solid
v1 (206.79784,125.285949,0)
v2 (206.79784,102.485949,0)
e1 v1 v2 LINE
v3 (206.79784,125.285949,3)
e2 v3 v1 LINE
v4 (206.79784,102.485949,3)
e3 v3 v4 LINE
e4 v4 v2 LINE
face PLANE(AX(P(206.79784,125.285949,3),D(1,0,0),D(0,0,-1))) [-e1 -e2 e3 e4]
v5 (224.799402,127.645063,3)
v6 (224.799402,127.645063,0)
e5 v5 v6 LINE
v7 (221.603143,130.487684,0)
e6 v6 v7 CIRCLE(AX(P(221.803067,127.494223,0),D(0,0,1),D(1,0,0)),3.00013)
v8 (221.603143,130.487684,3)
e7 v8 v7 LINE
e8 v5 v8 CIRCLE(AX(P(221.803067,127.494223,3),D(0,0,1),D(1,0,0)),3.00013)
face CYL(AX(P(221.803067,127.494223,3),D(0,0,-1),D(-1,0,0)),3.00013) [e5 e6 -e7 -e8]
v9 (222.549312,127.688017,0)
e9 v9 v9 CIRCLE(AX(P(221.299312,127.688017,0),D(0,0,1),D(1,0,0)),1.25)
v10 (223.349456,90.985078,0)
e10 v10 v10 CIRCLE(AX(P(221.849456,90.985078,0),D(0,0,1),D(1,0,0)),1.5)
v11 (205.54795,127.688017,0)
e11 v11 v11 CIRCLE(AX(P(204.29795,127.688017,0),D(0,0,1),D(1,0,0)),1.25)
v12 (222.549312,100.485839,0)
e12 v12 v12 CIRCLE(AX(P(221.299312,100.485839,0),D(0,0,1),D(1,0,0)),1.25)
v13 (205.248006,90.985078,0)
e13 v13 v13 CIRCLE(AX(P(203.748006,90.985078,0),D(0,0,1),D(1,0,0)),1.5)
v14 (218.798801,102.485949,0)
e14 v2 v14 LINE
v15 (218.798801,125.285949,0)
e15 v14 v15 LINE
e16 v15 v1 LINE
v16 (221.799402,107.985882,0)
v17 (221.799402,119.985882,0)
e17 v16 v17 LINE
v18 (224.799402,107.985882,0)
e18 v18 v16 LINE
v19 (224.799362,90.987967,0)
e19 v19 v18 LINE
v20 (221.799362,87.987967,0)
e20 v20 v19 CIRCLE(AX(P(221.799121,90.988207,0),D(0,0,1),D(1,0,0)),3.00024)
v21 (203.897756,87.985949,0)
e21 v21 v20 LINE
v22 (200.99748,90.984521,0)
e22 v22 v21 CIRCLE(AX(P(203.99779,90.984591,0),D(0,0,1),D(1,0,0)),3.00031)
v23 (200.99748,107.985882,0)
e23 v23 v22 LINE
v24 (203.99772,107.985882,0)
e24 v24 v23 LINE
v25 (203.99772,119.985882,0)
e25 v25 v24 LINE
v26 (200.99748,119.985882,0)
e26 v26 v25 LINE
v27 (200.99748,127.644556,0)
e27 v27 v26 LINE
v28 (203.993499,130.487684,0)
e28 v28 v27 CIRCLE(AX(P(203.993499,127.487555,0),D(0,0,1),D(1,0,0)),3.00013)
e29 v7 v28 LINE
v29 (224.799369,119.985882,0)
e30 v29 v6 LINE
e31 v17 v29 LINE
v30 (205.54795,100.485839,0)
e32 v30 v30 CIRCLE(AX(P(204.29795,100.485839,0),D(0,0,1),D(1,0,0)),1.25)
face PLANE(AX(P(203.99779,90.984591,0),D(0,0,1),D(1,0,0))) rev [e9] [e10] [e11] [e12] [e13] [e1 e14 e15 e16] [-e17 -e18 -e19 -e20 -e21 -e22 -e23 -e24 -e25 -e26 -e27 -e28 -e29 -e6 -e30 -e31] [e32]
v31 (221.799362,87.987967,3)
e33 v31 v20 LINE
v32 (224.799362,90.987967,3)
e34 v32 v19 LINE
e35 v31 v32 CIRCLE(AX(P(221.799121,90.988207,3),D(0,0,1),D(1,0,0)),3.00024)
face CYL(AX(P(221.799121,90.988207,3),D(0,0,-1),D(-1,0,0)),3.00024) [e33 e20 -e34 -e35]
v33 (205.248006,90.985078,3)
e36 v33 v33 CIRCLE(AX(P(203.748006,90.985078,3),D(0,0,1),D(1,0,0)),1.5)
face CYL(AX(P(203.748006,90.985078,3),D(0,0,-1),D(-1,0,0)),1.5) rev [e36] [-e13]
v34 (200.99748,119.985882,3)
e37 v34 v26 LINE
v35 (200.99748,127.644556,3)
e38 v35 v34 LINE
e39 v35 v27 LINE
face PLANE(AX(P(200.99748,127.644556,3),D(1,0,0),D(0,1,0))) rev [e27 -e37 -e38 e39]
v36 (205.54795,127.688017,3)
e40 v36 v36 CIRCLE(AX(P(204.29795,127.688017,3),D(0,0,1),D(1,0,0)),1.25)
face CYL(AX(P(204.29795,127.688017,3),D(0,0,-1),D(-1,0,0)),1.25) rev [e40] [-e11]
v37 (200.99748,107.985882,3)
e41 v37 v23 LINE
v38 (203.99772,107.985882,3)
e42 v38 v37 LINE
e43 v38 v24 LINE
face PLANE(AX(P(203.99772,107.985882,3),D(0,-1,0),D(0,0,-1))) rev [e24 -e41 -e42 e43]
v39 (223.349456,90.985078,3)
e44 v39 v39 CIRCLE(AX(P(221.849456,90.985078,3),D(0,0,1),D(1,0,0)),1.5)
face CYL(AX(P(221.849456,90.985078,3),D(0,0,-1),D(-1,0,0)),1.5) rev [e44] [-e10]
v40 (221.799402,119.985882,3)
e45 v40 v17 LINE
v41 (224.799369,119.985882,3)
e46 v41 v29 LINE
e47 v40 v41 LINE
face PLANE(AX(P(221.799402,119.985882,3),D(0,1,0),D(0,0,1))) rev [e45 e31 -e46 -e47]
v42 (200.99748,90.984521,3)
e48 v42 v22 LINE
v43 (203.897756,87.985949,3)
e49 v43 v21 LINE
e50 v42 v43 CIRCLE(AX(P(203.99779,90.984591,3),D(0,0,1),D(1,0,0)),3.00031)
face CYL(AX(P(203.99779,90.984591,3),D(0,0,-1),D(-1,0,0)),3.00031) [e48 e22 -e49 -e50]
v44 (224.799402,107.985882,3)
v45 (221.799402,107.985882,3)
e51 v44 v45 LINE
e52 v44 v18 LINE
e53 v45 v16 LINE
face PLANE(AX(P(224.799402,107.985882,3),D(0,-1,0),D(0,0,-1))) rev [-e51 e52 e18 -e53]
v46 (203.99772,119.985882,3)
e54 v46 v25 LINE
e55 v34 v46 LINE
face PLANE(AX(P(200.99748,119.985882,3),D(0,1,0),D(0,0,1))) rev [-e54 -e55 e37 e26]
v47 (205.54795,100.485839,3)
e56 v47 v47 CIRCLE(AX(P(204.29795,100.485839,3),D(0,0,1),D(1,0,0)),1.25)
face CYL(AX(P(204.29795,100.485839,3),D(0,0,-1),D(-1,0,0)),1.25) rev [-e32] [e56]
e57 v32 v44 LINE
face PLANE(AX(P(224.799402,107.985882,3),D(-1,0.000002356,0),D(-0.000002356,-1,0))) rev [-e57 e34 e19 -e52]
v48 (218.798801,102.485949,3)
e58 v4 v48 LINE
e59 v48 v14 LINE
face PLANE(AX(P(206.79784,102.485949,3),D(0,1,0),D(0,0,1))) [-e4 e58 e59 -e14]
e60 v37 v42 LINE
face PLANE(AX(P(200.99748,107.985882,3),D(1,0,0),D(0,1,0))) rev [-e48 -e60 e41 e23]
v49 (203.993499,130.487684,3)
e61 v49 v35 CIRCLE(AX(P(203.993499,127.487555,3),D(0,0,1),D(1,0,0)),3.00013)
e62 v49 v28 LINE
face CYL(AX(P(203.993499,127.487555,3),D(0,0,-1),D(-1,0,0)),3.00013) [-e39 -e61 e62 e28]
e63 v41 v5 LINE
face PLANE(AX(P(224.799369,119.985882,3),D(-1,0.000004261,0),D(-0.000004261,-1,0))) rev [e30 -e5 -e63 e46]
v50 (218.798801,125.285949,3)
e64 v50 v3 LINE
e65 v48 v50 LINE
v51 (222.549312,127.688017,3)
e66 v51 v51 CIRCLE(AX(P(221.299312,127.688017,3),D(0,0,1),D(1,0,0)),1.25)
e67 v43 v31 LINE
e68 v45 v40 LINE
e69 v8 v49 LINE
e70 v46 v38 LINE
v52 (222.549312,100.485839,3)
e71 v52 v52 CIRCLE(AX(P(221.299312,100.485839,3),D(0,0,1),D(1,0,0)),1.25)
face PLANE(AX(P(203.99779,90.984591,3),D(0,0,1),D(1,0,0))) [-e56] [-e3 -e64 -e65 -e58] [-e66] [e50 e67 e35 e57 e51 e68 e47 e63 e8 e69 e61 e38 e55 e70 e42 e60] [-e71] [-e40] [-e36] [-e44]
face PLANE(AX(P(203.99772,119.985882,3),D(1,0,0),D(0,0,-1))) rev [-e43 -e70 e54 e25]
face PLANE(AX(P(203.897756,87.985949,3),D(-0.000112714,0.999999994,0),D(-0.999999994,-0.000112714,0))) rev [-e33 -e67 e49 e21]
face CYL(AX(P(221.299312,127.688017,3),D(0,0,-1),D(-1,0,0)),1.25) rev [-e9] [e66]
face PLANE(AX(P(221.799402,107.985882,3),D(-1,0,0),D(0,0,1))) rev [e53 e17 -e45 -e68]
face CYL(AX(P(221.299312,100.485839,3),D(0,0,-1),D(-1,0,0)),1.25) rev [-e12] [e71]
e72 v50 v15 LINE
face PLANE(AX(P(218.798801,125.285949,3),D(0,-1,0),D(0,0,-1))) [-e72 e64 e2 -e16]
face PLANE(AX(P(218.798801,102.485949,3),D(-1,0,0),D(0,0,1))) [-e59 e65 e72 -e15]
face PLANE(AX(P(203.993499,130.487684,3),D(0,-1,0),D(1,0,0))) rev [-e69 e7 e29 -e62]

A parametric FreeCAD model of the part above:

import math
import FreeCAD as App
import Part
import Sketcher
from FreeCAD import Vector
Q = App.Units.Quantity


def add_polygon(sketch, points):
    """Adds a closed chain of lines whose ends are joined by coincident constraints."""
    first, n = sketch.GeometryCount, len(points)
    for a, b in zip(points, points[1:] + points[:1]):
        sketch.addGeometry(Part.LineSegment(App.Vector(*a, 0), App.Vector(*b, 0)), False)
    for i in range(n):
        sketch.addConstraint(Sketcher.Constraint("Coincident", first + i, 2, first + (i + 1) % n, 1))

doc = App.newDocument("Part")
body = doc.addObject("PartDesign::Body", "Body")

sketch1 = doc.addObject("Sketcher::SketchObject", "Sketch")
body.addObject(sketch1)
sketch1.AttachmentSupport = (doc.XY_Plane, [""])
sketch1.MapMode = "FlatFace"
sketch1.addGeometry(Part.LineSegment(Vector(224.799402, 107.985882, 0), Vector(221.799402, 107.985882, 0)), False)
sketch1.addGeometry(Part.LineSegment(Vector(221.799402, 107.985882, 0), Vector(221.799402, 119.985882, 0)), False)
sketch1.addGeometry(Part.LineSegment(Vector(221.799402, 119.985882, 0), Vector(224.799369, 119.985882, 0)), False)
sketch1.addGeometry(Part.LineSegment(Vector(224.799369, 119.985882, 0), Vector(224.799402, 127.645063, 0)), False)
sketch1.addGeometry(Part.ArcOfCircle(Part.Circle(Vector(221.803067, 127.494223, 0), Vector(0, 0, 1), 3.00013), math.radians(2.881927), math.radians(93.820927)), False)
sketch1.addGeometry(Part.LineSegment(Vector(221.603143, 130.487684, 0), Vector(203.993499, 130.487684, 0)), False)
sketch1.addGeometry(Part.ArcOfCircle(Part.Circle(Vector(203.993499, 127.487555, 0), Vector(0, 0, 1), 3.00013), math.radians(90), math.radians(177.000244)), False)
sketch1.addGeometry(Part.LineSegment(Vector(200.99748, 127.644556, 0), Vector(200.99748, 119.985882, 0)), False)
sketch1.addGeometry(Part.LineSegment(Vector(200.99748, 119.985882, 0), Vector(203.99772, 119.985882, 0)), False)
sketch1.addGeometry(Part.LineSegment(Vector(203.99772, 119.985882, 0), Vector(203.99772, 107.985882, 0)), False)
sketch1.addGeometry(Part.LineSegment(Vector(203.99772, 107.985882, 0), Vector(200.99748, 107.985882, 0)), False)
sketch1.addGeometry(Part.LineSegment(Vector(200.99748, 107.985882, 0), Vector(200.99748, 90.984521, 0)), False)
sketch1.addGeometry(Part.ArcOfCircle(Part.Circle(Vector(203.99779, 90.984591, 0), Vector(0, 0, 1), 3.00031), math.radians(-179.998674), math.radians(-91.910651)), False)
sketch1.addGeometry(Part.LineSegment(Vector(203.897756, 87.985949, 0), Vector(221.799362, 87.987967, 0)), False)
sketch1.addGeometry(Part.ArcOfCircle(Part.Circle(Vector(221.799121, 90.988207, 0), Vector(0, 0, 1), 3.00024), math.radians(-89.995413), math.radians(-0.004587)), False)
sketch1.addGeometry(Part.LineSegment(Vector(224.799362, 90.987967, 0), Vector(224.799402, 107.985882, 0)), False)
sketch1.addGeometry(Part.Circle(Vector(203.748006, 90.985078, 0), Vector(0, 0, 1), 1.5), False)
sketch1.addGeometry(Part.Circle(Vector(204.29795, 100.485839, 0), Vector(0, 0, 1), 1.25), False)
sketch1.addGeometry(Part.Circle(Vector(221.849456, 90.985078, 0), Vector(0, 0, 1), 1.5), False)
sketch1.addGeometry(Part.Circle(Vector(221.299312, 100.485839, 0), Vector(0, 0, 1), 1.25), False)
add_polygon(sketch1, [(218.798801, 102.485949), (206.79784, 102.485949), (206.79784, 125.285949), (218.798801, 125.285949)])
sketch1.addGeometry(Part.Circle(Vector(204.29795, 127.688017, 0), Vector(0, 0, 1), 1.25), False)
sketch1.addGeometry(Part.Circle(Vector(221.299312, 127.688017, 0), Vector(0, 0, 1), 1.25), False)
sketch1.addConstraint(Sketcher.Constraint("Coincident", 0, 2, 1, 1))
sketch1.addConstraint(Sketcher.Constraint("Coincident", 1, 2, 2, 1))
sketch1.addConstraint(Sketcher.Constraint("Coincident", 2, 2, 3, 1))
sketch1.addConstraint(Sketcher.Constraint("Coincident", 3, 2, 4, 1))
sketch1.addConstraint(Sketcher.Constraint("Coincident", 4, 2, 5, 1))
sketch1.addConstraint(Sketcher.Constraint("Tangent", 5, 2, 6, 1))
sketch1.addConstraint(Sketcher.Constraint("Coincident", 6, 2, 7, 1))
sketch1.addConstraint(Sketcher.Constraint("Coincident", 7, 2, 8, 1))
sketch1.addConstraint(Sketcher.Constraint("Coincident", 8, 2, 9, 1))
sketch1.addConstraint(Sketcher.Constraint("Coincident", 9, 2, 10, 1))
sketch1.addConstraint(Sketcher.Constraint("Coincident", 10, 2, 11, 1))
sketch1.addConstraint(Sketcher.Constraint("Coincident", 11, 2, 12, 1))
sketch1.addConstraint(Sketcher.Constraint("Coincident", 12, 2, 13, 1))
sketch1.addConstraint(Sketcher.Constraint("Coincident", 13, 2, 14, 1))
sketch1.addConstraint(Sketcher.Constraint("Coincident", 14, 2, 15, 1))
sketch1.addConstraint(Sketcher.Constraint("Coincident", 15, 2, 0, 1))
sketch1.addConstraint(Sketcher.Constraint("Horizontal", 0))
sketch1.addConstraint(Sketcher.Constraint("Vertical", 1))
sketch1.addConstraint(Sketcher.Constraint("Horizontal", 2))
sketch1.addConstraint(Sketcher.Constraint("Horizontal", 5))
sketch1.addConstraint(Sketcher.Constraint("Vertical", 7))
sketch1.addConstraint(Sketcher.Constraint("Horizontal", 8))
sketch1.addConstraint(Sketcher.Constraint("Vertical", 9))
sketch1.addConstraint(Sketcher.Constraint("Horizontal", 10))
sketch1.addConstraint(Sketcher.Constraint("Vertical", 11))
sketch1.addConstraint(Sketcher.Constraint("Horizontal", 20))
sketch1.addConstraint(Sketcher.Constraint("Vertical", 21))
sketch1.addConstraint(Sketcher.Constraint("Horizontal", 22))
sketch1.addConstraint(Sketcher.Constraint("Vertical", 23))
sketch1.addConstraint(Sketcher.Constraint("Equal", 4, 6))
sketch1.addConstraint(Sketcher.Constraint("Equal", 16, 18))
sketch1.addConstraint(Sketcher.Constraint("Equal", 17, 19))
sketch1.addConstraint(Sketcher.Constraint("Equal", 19, 24))
sketch1.addConstraint(Sketcher.Constraint("Equal", 24, 25))
sketch1.addConstraint(Sketcher.Constraint("Parallel", 3, 15))
sketch1.addConstraint(Sketcher.Constraint("Horizontal", 16, 3, 18, 3))
sketch1.addConstraint(Sketcher.Constraint("Horizontal", 17, 3, 19, 3))
sketch1.addConstraint(Sketcher.Constraint("Horizontal", 24, 3, 25, 3))
sketch1.addConstraint(Sketcher.Constraint("Horizontal", 2, 2, 7, 2))
sketch1.addConstraint(Sketcher.Constraint("Horizontal", 0, 2, 9, 2))
sketch1.addConstraint(Sketcher.Constraint("Vertical", 17, 3, 24, 3))
sketch1.addConstraint(Sketcher.Constraint("Vertical", 19, 3, 25, 3))
sketch1.addConstraint(Sketcher.Constraint("Vertical", 7, 2, 10, 2))
sketch1.addConstraint(Sketcher.Constraint("Vertical", 3, 2, 15, 2))
sketch1.addConstraint(Sketcher.Constraint("Diameter", 16, Q("3 mm")))
sketch1.addConstraint(Sketcher.Constraint("Diameter", 17, Q("2.5 mm")))
sketch1.addConstraint(Sketcher.Constraint("DistanceX", 0, 2, 0, 1, Q("3 mm")))
sketch1.addConstraint(Sketcher.Constraint("DistanceY", 1, 1, 1, 2, Q("12 mm")))
sketch1.addConstraint(Sketcher.Constraint("DistanceY", 21, 1, 21, 2, Q("22.8 mm")))
sketch1.addConstraint(Sketcher.Constraint("DistanceX", 13, 2, 14, 2, Q("3 mm")))
sketch1.addConstraint(Sketcher.Constraint("DistanceY", 13, 2, 14, 2, Q("3 mm")))
sketch1.addConstraint(Sketcher.Constraint("Radius", 4, Q("3.00013 mm")))
sketch1.addConstraint(Sketcher.Constraint("Radius", 12, Q("3.00031 mm")))
sketch1.addConstraint(Sketcher.Constraint("Radius", 14, Q("3.00024 mm")))
sketch1.addConstraint(Sketcher.Constraint("DistanceY", 6, 3, 6, 2, Q("0.157002 mm")))
sketch1.addConstraint(Sketcher.Constraint("DistanceX", 8, 1, 8, 2, Q("3.00024 mm")))
sketch1.addConstraint(Sketcher.Constraint("DistanceX", 20, 2, 20, 1, Q("12.000961 mm")))
sketch1.addConstraint(Sketcher.Constraint("DistanceY", 11, 2, 11, 1, Q("17.001361 mm")))
sketch1.addConstraint(Sketcher.Constraint("DistanceX", -1, 1, 6, 3, Q("203.993499 mm")))
sketch1.addConstraint(Sketcher.Constraint("DistanceX", -1, 1, 0, 2, Q("221.799402 mm")))
sketch1.addConstraint(Sketcher.Constraint("DistanceX", -1, 1, 22, 2, Q("218.798801 mm")))
sketch1.addConstraint(Sketcher.Constraint("DistanceY", 1, 2, 4, 2, Q("10.501802 mm")))
sketch1.addConstraint(Sketcher.Constraint("Distance", 3, Q("7.659181 mm")))
sketch1.addConstraint(Sketcher.Constraint("DistanceX", 2, 1, 2, 2, Q("2.999967 mm")))
sketch1.addConstraint(Sketcher.Constraint("DistanceX", 5, 2, 5, 1, Q("17.609644 mm")))
sketch1.addConstraint(Sketcher.Constraint("DistanceY", -1, 1, 12, 3, Q("90.984591 mm")))
sketch1.addConstraint(Sketcher.Constraint("DistanceY", -1, 1, 16, 3, Q("90.985078 mm")))
sketch1.addConstraint(Sketcher.Constraint("DistanceX", -1, 1, 17, 3, Q("204.29795 mm")))
sketch1.addConstraint(Sketcher.Constraint("DistanceY", -1, 1, 17, 3, Q("100.485839 mm")))
sketch1.addConstraint(Sketcher.Constraint("DistanceX", -1, 1, 19, 3, Q("221.299312 mm")))
sketch1.addConstraint(Sketcher.Constraint("DistanceY", -1, 1, 11, 2, Q("90.984521 mm")))
sketch1.addConstraint(Sketcher.Constraint("DistanceY", -1, 1, 12, 2, Q("87.985949 mm")))
sketch1.addConstraint(Sketcher.Constraint("DistanceY", -1, 1, 20, 2, Q("102.485949 mm")))
sketch1.addConstraint(Sketcher.Constraint("DistanceY", 16, 3, 14, 3, Q("0.003129 mm")))
sketch1.addConstraint(Sketcher.Constraint("DistanceX", 16, 3, 4, 3, Q("18.05506 mm")))
sketch1.addConstraint(Sketcher.Constraint("DistanceX", 16, 3, 18, 3, Q("18.101449 mm")))
sketch1.addConstraint(Sketcher.Constraint("DistanceY", 6, 2, 24, 3, Q("0.04346 mm")))
pad1 = doc.addObject("PartDesign::Pad", "Pad")
body.addObject(pad1)
pad1.Profile = sketch1
pad1.Length = 3

doc.recompute()
